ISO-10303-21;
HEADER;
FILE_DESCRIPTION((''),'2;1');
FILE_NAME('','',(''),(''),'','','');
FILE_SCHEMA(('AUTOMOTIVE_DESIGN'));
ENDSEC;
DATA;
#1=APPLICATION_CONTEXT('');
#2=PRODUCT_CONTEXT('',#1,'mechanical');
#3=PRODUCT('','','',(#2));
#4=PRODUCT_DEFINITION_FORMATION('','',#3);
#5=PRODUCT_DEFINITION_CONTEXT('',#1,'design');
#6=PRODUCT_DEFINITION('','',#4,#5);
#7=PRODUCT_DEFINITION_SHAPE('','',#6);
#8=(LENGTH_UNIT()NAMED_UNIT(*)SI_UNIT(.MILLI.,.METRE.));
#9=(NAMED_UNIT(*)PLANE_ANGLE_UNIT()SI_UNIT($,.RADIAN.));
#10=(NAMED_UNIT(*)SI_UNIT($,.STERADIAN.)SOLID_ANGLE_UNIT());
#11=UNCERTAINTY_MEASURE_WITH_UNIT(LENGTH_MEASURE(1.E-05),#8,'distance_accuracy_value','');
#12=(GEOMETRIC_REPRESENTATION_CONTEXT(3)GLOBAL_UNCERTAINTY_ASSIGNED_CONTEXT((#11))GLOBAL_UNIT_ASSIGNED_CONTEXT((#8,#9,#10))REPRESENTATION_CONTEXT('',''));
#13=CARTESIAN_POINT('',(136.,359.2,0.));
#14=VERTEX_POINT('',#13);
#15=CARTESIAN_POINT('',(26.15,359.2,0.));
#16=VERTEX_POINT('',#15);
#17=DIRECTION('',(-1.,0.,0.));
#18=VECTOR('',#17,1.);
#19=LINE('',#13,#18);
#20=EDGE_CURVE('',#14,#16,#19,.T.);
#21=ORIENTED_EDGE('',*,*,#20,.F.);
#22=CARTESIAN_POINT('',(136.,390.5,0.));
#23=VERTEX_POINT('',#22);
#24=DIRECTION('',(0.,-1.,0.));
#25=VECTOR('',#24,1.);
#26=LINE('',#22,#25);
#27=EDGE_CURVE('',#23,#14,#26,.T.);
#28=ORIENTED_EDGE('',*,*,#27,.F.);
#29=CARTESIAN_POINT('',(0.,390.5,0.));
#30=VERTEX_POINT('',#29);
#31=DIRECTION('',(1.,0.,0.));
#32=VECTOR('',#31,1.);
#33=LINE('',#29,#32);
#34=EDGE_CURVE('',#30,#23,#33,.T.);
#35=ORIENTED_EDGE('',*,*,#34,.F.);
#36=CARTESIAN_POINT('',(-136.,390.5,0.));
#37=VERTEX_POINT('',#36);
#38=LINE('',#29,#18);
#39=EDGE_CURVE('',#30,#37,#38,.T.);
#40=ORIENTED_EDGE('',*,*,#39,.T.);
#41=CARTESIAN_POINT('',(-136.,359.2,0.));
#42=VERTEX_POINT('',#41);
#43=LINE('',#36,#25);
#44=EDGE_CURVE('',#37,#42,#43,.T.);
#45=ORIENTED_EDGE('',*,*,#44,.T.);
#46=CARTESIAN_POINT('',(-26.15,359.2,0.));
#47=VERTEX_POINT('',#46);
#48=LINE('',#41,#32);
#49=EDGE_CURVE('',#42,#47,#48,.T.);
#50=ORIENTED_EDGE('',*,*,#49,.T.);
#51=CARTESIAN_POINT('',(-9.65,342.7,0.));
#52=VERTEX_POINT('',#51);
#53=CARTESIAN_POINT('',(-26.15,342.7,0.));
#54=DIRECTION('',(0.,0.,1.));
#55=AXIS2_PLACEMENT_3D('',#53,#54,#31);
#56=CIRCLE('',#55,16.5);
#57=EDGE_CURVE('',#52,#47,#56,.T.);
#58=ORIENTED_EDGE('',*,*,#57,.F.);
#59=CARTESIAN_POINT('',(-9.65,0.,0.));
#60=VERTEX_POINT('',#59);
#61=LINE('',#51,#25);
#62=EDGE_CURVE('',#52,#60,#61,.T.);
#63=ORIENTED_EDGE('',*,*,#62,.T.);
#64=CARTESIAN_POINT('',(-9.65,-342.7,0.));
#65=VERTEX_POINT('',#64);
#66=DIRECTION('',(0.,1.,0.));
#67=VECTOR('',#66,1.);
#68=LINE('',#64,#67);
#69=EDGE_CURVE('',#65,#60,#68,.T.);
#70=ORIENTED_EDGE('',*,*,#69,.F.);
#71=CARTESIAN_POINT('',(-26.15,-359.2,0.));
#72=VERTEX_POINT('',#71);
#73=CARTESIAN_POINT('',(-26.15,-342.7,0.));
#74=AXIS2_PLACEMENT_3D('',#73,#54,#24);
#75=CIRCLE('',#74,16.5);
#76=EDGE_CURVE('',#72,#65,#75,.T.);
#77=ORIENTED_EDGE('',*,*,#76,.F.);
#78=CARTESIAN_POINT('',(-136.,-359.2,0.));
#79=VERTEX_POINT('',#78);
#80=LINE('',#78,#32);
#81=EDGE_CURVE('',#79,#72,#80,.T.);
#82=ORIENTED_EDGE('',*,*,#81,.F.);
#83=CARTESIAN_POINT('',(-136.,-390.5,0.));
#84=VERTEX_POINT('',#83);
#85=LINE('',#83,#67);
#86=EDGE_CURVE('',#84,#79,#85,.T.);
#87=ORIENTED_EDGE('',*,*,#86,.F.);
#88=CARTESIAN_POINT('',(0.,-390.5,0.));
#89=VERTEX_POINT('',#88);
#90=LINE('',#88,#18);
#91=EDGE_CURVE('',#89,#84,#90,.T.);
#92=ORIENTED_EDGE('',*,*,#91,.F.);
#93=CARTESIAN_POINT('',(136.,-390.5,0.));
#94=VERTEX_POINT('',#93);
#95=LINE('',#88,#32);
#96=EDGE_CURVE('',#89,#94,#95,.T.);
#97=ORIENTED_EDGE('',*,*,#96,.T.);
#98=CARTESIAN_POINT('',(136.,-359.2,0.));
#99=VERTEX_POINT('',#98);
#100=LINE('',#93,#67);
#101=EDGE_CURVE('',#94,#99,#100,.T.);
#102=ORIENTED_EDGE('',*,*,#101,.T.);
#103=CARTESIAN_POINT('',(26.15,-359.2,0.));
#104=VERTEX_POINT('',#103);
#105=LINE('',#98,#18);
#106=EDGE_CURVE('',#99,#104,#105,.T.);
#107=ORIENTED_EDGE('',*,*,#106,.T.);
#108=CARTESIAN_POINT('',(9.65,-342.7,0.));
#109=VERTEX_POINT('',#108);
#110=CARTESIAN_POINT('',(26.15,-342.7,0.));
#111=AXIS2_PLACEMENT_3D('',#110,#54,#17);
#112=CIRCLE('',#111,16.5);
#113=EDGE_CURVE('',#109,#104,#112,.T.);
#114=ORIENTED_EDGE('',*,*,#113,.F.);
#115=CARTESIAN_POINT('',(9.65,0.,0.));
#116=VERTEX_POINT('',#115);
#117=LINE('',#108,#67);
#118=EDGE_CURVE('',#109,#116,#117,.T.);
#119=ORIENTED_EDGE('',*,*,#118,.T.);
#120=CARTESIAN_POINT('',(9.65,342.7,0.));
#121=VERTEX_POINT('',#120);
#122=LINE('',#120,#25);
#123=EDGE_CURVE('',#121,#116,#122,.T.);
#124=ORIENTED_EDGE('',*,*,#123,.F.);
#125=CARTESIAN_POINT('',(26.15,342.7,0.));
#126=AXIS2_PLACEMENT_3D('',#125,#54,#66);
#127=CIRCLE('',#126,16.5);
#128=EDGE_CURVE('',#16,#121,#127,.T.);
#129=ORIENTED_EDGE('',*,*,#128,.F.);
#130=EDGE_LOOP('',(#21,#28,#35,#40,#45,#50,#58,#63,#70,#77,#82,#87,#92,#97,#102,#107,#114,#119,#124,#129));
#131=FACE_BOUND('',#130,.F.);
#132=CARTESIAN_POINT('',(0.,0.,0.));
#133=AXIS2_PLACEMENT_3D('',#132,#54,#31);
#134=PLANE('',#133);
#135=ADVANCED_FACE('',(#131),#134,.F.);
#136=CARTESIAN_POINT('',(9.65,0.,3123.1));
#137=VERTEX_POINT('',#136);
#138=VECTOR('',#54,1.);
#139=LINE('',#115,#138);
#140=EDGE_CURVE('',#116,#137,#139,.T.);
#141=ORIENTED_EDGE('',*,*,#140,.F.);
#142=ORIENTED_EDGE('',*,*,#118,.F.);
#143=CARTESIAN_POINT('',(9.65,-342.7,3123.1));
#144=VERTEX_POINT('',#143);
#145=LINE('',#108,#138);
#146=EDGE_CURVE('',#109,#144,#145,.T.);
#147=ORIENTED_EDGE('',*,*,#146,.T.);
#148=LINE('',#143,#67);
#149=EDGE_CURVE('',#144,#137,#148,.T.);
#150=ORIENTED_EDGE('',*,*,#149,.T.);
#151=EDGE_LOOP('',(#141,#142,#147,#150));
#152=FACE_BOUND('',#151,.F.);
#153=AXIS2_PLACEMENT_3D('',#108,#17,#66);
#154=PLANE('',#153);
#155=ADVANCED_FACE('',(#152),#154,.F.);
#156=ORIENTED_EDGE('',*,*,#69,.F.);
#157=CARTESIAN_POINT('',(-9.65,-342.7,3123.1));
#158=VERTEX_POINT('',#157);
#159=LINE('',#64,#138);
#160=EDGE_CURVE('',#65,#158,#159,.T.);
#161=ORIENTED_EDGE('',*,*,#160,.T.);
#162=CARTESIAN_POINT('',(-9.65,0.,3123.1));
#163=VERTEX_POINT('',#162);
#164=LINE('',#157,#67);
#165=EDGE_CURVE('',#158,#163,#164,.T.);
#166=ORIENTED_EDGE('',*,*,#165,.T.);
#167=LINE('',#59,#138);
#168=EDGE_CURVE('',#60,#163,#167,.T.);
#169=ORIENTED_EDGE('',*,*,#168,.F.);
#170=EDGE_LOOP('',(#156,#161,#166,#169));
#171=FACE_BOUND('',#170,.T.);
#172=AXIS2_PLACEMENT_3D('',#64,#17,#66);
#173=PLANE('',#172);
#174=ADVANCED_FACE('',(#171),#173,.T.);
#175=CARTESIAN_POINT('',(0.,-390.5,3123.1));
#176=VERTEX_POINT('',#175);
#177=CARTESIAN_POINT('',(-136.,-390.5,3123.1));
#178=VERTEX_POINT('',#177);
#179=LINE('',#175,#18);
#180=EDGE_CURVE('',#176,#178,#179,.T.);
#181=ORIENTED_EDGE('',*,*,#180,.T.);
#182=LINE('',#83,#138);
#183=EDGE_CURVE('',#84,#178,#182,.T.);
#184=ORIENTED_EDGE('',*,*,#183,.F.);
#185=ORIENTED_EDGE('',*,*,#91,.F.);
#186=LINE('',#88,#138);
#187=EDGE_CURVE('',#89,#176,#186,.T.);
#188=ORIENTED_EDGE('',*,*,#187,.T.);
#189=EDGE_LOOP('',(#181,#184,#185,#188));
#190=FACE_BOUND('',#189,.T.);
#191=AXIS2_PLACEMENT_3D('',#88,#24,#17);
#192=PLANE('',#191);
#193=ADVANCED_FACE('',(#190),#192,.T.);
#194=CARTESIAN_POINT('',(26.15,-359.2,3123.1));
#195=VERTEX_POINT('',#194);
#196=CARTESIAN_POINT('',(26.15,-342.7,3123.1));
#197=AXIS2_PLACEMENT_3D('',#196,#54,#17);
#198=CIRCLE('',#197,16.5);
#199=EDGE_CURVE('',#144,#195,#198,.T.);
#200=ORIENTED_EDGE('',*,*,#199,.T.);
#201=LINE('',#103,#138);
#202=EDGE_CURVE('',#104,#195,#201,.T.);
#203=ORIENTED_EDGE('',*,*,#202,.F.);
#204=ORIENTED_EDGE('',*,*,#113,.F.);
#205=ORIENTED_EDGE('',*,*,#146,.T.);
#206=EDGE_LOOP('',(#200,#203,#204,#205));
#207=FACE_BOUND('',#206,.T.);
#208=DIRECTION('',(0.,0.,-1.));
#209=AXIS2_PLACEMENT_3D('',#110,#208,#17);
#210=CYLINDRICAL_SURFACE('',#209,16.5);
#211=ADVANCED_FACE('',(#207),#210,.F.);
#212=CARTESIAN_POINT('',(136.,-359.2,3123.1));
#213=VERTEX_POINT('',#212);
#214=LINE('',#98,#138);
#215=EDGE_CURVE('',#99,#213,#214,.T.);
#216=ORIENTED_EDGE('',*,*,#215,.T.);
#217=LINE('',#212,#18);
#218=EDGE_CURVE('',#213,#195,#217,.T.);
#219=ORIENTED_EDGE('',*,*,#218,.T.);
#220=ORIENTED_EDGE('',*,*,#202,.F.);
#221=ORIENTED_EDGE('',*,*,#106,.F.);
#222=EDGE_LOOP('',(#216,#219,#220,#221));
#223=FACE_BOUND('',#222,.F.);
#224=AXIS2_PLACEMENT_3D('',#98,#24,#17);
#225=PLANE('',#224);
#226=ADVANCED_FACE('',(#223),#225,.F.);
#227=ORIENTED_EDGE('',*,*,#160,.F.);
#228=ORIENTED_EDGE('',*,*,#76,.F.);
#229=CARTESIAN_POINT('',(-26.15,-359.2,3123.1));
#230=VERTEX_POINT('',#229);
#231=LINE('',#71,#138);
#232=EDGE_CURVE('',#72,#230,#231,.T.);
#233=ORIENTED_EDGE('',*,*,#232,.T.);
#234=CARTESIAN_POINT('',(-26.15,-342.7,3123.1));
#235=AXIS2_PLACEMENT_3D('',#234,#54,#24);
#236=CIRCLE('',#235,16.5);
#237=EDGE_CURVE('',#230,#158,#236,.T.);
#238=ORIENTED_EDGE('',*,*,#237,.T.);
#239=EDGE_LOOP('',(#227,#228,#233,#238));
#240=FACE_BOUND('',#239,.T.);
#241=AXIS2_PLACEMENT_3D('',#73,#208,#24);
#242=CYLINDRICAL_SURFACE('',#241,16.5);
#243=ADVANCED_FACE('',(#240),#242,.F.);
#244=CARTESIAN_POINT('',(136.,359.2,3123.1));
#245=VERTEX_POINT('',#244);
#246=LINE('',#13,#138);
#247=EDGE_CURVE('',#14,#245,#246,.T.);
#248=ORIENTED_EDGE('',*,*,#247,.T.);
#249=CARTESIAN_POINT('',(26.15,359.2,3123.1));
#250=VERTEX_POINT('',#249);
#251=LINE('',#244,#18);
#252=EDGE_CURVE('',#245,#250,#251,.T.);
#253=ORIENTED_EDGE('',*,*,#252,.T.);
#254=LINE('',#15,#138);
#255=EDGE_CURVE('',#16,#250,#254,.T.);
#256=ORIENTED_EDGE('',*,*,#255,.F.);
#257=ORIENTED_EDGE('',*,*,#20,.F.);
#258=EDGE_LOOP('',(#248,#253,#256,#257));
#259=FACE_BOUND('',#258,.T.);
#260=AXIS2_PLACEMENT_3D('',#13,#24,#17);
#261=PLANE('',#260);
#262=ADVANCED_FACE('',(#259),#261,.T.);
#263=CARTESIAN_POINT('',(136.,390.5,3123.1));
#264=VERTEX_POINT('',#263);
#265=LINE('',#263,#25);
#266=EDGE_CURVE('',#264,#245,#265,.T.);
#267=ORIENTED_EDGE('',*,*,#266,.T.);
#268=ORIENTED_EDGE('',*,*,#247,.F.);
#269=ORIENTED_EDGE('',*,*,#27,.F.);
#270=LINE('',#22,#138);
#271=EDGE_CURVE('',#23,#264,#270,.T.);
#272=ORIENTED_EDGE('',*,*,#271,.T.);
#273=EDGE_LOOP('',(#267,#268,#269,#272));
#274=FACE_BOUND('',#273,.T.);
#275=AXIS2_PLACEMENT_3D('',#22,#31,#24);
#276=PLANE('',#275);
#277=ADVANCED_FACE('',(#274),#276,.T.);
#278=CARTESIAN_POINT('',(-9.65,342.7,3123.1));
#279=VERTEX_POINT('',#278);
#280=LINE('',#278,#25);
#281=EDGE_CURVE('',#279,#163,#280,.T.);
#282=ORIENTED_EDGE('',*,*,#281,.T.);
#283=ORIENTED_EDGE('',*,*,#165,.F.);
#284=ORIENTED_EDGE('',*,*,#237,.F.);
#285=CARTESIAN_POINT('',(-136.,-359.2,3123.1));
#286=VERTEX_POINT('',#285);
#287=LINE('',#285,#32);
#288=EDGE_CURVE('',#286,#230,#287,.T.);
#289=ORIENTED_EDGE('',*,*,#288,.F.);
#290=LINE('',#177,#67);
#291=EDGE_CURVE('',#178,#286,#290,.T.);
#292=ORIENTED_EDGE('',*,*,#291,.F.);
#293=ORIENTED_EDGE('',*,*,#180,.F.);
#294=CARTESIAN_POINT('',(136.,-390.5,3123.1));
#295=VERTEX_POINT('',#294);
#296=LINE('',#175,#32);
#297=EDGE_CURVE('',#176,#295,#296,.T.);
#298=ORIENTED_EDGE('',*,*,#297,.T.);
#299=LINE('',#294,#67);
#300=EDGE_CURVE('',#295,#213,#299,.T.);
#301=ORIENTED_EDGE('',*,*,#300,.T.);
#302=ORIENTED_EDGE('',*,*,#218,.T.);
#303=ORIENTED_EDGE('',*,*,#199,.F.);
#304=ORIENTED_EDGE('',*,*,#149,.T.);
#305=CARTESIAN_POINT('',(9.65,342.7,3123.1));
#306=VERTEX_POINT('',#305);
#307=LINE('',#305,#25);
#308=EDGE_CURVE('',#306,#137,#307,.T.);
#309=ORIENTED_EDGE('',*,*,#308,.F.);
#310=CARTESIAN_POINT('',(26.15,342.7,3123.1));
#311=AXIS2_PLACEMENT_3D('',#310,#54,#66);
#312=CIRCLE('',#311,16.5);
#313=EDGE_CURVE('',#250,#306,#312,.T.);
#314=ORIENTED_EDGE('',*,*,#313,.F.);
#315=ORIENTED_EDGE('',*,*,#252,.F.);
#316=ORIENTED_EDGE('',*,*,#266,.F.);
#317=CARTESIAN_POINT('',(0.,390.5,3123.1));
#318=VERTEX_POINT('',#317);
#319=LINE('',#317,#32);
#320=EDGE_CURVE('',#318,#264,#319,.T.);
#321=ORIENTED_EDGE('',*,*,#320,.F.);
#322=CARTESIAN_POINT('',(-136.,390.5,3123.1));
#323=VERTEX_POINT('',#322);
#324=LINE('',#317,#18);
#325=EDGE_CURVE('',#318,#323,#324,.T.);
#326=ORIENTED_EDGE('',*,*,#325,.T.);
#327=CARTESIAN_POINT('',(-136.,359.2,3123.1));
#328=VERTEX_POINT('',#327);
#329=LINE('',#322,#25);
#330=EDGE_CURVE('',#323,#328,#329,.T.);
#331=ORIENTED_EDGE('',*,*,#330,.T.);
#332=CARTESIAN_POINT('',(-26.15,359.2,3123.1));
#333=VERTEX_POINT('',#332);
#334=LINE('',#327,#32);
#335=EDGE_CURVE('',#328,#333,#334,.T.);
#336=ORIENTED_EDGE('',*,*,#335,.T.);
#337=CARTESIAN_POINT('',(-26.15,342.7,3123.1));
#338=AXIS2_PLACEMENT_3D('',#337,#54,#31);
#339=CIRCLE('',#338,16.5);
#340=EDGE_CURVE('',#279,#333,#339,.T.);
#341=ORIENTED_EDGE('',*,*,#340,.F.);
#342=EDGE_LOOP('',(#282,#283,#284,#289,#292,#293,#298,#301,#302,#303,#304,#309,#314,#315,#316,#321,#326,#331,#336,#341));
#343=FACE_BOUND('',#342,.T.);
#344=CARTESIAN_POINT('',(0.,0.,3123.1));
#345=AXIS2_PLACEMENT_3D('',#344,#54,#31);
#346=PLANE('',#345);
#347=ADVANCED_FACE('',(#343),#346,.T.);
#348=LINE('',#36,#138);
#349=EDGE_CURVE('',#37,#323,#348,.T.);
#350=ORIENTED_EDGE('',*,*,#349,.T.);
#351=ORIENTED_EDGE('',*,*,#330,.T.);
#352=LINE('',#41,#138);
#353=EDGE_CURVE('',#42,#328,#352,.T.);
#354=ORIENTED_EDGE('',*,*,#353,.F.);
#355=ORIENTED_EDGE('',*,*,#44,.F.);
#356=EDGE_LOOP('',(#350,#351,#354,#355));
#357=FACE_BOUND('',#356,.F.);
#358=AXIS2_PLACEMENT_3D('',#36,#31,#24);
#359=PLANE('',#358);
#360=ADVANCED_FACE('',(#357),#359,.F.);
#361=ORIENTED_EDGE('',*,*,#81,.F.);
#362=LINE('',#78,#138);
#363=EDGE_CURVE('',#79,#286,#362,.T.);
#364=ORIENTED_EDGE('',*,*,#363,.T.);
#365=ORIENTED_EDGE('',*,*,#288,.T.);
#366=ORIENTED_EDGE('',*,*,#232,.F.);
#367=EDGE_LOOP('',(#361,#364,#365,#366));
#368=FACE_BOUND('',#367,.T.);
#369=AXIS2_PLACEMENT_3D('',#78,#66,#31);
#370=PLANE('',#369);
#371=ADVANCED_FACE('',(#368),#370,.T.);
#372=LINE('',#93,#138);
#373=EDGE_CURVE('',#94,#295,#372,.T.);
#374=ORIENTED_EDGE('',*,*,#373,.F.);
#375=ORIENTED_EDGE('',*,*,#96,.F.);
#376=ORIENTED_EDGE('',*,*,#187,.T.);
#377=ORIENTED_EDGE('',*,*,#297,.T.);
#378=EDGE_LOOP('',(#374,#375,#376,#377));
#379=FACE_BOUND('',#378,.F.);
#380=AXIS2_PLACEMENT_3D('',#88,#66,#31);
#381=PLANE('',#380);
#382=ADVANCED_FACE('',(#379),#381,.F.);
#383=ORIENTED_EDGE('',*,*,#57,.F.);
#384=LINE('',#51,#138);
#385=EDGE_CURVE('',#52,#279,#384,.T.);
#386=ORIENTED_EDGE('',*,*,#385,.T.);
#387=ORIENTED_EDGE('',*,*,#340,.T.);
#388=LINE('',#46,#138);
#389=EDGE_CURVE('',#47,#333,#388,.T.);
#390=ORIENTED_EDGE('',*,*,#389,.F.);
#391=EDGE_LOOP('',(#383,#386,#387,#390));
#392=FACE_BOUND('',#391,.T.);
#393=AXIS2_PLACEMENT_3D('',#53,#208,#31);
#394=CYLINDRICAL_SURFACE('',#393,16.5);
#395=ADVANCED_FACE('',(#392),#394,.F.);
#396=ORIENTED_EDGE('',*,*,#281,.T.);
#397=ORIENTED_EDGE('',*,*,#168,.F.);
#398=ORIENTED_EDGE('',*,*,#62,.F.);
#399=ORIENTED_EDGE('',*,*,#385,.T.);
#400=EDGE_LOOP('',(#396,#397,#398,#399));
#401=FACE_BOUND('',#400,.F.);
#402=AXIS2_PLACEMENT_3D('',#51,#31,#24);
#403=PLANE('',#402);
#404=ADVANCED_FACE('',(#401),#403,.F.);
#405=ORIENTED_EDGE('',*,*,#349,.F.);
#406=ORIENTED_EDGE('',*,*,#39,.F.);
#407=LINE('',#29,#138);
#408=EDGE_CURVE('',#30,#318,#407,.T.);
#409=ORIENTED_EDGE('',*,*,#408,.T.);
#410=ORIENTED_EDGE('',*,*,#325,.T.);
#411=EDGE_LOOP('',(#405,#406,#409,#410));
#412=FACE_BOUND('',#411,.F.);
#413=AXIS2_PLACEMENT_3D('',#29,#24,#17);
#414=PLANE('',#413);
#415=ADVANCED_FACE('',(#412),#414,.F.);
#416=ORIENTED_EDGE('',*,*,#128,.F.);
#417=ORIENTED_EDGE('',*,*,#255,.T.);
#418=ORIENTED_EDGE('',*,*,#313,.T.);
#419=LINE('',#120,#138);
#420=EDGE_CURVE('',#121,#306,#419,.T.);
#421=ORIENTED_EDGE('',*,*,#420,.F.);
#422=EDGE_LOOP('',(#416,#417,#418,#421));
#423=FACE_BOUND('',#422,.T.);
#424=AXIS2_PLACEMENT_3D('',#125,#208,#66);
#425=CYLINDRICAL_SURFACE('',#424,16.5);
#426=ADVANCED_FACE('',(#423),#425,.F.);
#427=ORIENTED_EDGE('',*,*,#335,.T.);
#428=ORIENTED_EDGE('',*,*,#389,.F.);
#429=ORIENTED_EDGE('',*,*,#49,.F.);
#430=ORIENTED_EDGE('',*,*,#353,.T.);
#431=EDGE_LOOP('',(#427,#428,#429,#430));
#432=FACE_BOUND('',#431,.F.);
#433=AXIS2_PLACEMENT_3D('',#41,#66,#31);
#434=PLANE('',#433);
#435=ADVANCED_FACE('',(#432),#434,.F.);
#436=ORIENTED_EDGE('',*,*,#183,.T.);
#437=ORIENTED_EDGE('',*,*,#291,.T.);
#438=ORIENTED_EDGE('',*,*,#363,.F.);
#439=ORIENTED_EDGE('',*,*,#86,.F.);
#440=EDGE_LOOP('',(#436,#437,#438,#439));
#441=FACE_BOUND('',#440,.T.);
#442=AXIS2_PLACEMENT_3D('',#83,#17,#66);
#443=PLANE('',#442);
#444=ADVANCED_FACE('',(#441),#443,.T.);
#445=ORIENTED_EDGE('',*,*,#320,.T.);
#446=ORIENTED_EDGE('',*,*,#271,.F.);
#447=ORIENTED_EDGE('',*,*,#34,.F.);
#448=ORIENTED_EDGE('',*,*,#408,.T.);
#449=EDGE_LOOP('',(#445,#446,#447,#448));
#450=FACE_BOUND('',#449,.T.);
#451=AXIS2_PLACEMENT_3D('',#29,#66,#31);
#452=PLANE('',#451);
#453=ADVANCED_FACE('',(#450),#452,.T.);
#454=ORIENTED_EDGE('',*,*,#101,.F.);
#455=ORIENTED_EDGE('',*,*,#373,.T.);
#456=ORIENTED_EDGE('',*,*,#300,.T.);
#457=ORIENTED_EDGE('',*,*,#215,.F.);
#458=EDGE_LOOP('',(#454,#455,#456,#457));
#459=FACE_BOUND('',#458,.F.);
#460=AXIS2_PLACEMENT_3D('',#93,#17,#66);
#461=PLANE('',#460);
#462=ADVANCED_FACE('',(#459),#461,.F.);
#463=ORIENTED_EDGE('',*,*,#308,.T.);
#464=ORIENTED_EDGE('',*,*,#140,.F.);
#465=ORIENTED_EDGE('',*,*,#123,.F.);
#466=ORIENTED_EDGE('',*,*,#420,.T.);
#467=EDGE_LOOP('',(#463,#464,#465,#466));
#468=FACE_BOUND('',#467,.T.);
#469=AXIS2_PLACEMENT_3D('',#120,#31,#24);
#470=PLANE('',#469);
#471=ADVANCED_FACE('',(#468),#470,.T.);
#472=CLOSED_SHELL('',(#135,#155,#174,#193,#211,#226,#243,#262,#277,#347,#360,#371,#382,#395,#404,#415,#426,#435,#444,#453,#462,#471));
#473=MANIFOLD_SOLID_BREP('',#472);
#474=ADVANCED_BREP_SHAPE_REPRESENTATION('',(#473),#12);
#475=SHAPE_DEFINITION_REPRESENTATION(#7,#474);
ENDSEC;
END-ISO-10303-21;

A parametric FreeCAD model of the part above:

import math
import FreeCAD as App
import Part
import Sketcher

V = App.Vector
Q = App.Units.Quantity

doc = App.newDocument("Part")
body = doc.addObject("PartDesign::Body", "Body")

sketch1 = body.newObject("Sketcher::SketchObject", "Sketch")
sketch1.AttachmentSupport = (doc.getObject("XY_Plane"), [""])
sketch1.MapMode = "FlatFace"
sketch1.addGeometry(Part.LineSegment(V(-136, -359, 0), V(-136, -390, 0)), False)
sketch1.addGeometry(Part.LineSegment(V(-136, -390, 0), V(136, -390, 0)), False)
sketch1.addGeometry(Part.LineSegment(V(136, -390, 0), V(136, -359, 0)), False)
sketch1.addGeometry(Part.LineSegment(V(136, -359, 0), V(26, -359, 0)), False)
sketch1.addGeometry(Part.ArcOfCircle(Part.Circle(V(26, -343, 0), V(0, 0, 1), 16), math.radians(180), math.radians(270)), False)
sketch1.addGeometry(Part.LineSegment(V(10, -343, 0), V(10, 343, 0)), False)
sketch1.addGeometry(Part.ArcOfCircle(Part.Circle(V(26, 343, 0), V(0, 0, 1), 16), math.radians(90), math.radians(180)), False)
sketch1.addGeometry(Part.LineSegment(V(26, 359, 0), V(136, 359, 0)), False)
sketch1.addGeometry(Part.LineSegment(V(136, 359, 0), V(136, 390, 0)), False)
sketch1.addGeometry(Part.LineSegment(V(136, 390, 0), V(-136, 390, 0)), False)
sketch1.addGeometry(Part.LineSegment(V(-136, 390, 0), V(-136, 359, 0)), False)
sketch1.addGeometry(Part.LineSegment(V(-136, 359, 0), V(-26, 359, 0)), False)
sketch1.addGeometry(Part.ArcOfCircle(Part.Circle(V(-26, 343, 0), V(0, 0, 1), 16), math.radians(0), math.radians(90)), False)
sketch1.addGeometry(Part.LineSegment(V(-10, 343, 0), V(-10, -343, 0)), False)
sketch1.addGeometry(Part.ArcOfCircle(Part.Circle(V(-26, -343, 0), V(0, 0, 1), 16), math.radians(-90), math.radians(0)), False)
sketch1.addGeometry(Part.LineSegment(V(-26, -359, 0), V(-136, -359, 0)), False)
sketch1.addConstraint(Sketcher.Constraint("Coincident", 0, 2, 1, 1))
sketch1.addConstraint(Sketcher.Constraint("Coincident", 1, 2, 2, 1))
sketch1.addConstraint(Sketcher.Constraint("Coincident", 2, 2, 3, 1))
sketch1.addConstraint(Sketcher.Constraint("Tangent", 3, 2, 4, 2))
sketch1.addConstraint(Sketcher.Constraint("Tangent", 4, 1, 5, 1))
sketch1.addConstraint(Sketcher.Constraint("Tangent", 5, 2, 6, 2))
sketch1.addConstraint(Sketcher.Constraint("Tangent", 6, 1, 7, 1))
sketch1.addConstraint(Sketcher.Constraint("Coincident", 7, 2, 8, 1))
sketch1.addConstraint(Sketcher.Constraint("Coincident", 8, 2, 9, 1))
sketch1.addConstraint(Sketcher.Constraint("Coincident", 9, 2, 10, 1))
sketch1.addConstraint(Sketcher.Constraint("Coincident", 10, 2, 11, 1))
sketch1.addConstraint(Sketcher.Constraint("Tangent", 11, 2, 12, 2))
sketch1.addConstraint(Sketcher.Constraint("Tangent", 12, 1, 13, 1))
sketch1.addConstraint(Sketcher.Constraint("Tangent", 13, 2, 14, 2))
sketch1.addConstraint(Sketcher.Constraint("Tangent", 14, 1, 15, 1))
sketch1.addConstraint(Sketcher.Constraint("Coincident", 15, 2, 0, 1))
sketch1.addConstraint(Sketcher.Constraint("Vertical", 0))
sketch1.addConstraint(Sketcher.Constraint("Horizontal", 1))
sketch1.addConstraint(Sketcher.Constraint("Vertical", 2))
sketch1.addConstraint(Sketcher.Constraint("Horizontal", 3))
sketch1.addConstraint(Sketcher.Constraint("Vertical", 5))
sketch1.addConstraint(Sketcher.Constraint("Horizontal", 7))
sketch1.addConstraint(Sketcher.Constraint("Vertical", 8))
sketch1.addConstraint(Sketcher.Constraint("Horizontal", 9))
sketch1.addConstraint(Sketcher.Constraint("Vertical", 10))
sketch1.addConstraint(Sketcher.Constraint("Horizontal", 11))
sketch1.addConstraint(Sketcher.Constraint("Vertical", 13))
sketch1.addConstraint(Sketcher.Constraint("Horizontal", 15))
sketch1.addConstraint(Sketcher.Constraint("Equal", 4, 6))
sketch1.addConstraint(Sketcher.Constraint("Equal", 6, 12))
sketch1.addConstraint(Sketcher.Constraint("Equal", 12, 14))
sketch1.addConstraint(Sketcher.Constraint("Symmetric", 4, 3, 12, 3, -1, 1))
sketch1.addConstraint(Sketcher.Constraint("Symmetric", 0, 2, 8, 2, -1, 1))
sketch1.addConstraint(Sketcher.Constraint("Symmetric", 7, 2, 10, 2, -2))
sketch1.addConstraint(Sketcher.Constraint("Symmetric", 2, 2, 15, 2, -2))
sketch1.addConstraint(Sketcher.Constraint("Radius", 4, Q("16.5 mm")))
sketch1.addConstraint(Sketcher.Constraint("DistanceY", 0, 2, 0, 1, Q("31.3 mm")))
sketch1.addConstraint(Sketcher.Constraint("DistanceX", 0, 2, -1, 1, Q("136 mm")))
sketch1.addConstraint(Sketcher.Constraint("DistanceY", 0, 2, -1, 1, Q("390.5 mm")))
sketch1.addConstraint(Sketcher.Constraint("DistanceX", -1, 1, 4, 1, Q("9.65 mm")))
pad1 = body.newObject("PartDesign::Pad", "Pad")
pad1.Profile = sketch1
pad1.Length = 3123.1

doc.recompute()
